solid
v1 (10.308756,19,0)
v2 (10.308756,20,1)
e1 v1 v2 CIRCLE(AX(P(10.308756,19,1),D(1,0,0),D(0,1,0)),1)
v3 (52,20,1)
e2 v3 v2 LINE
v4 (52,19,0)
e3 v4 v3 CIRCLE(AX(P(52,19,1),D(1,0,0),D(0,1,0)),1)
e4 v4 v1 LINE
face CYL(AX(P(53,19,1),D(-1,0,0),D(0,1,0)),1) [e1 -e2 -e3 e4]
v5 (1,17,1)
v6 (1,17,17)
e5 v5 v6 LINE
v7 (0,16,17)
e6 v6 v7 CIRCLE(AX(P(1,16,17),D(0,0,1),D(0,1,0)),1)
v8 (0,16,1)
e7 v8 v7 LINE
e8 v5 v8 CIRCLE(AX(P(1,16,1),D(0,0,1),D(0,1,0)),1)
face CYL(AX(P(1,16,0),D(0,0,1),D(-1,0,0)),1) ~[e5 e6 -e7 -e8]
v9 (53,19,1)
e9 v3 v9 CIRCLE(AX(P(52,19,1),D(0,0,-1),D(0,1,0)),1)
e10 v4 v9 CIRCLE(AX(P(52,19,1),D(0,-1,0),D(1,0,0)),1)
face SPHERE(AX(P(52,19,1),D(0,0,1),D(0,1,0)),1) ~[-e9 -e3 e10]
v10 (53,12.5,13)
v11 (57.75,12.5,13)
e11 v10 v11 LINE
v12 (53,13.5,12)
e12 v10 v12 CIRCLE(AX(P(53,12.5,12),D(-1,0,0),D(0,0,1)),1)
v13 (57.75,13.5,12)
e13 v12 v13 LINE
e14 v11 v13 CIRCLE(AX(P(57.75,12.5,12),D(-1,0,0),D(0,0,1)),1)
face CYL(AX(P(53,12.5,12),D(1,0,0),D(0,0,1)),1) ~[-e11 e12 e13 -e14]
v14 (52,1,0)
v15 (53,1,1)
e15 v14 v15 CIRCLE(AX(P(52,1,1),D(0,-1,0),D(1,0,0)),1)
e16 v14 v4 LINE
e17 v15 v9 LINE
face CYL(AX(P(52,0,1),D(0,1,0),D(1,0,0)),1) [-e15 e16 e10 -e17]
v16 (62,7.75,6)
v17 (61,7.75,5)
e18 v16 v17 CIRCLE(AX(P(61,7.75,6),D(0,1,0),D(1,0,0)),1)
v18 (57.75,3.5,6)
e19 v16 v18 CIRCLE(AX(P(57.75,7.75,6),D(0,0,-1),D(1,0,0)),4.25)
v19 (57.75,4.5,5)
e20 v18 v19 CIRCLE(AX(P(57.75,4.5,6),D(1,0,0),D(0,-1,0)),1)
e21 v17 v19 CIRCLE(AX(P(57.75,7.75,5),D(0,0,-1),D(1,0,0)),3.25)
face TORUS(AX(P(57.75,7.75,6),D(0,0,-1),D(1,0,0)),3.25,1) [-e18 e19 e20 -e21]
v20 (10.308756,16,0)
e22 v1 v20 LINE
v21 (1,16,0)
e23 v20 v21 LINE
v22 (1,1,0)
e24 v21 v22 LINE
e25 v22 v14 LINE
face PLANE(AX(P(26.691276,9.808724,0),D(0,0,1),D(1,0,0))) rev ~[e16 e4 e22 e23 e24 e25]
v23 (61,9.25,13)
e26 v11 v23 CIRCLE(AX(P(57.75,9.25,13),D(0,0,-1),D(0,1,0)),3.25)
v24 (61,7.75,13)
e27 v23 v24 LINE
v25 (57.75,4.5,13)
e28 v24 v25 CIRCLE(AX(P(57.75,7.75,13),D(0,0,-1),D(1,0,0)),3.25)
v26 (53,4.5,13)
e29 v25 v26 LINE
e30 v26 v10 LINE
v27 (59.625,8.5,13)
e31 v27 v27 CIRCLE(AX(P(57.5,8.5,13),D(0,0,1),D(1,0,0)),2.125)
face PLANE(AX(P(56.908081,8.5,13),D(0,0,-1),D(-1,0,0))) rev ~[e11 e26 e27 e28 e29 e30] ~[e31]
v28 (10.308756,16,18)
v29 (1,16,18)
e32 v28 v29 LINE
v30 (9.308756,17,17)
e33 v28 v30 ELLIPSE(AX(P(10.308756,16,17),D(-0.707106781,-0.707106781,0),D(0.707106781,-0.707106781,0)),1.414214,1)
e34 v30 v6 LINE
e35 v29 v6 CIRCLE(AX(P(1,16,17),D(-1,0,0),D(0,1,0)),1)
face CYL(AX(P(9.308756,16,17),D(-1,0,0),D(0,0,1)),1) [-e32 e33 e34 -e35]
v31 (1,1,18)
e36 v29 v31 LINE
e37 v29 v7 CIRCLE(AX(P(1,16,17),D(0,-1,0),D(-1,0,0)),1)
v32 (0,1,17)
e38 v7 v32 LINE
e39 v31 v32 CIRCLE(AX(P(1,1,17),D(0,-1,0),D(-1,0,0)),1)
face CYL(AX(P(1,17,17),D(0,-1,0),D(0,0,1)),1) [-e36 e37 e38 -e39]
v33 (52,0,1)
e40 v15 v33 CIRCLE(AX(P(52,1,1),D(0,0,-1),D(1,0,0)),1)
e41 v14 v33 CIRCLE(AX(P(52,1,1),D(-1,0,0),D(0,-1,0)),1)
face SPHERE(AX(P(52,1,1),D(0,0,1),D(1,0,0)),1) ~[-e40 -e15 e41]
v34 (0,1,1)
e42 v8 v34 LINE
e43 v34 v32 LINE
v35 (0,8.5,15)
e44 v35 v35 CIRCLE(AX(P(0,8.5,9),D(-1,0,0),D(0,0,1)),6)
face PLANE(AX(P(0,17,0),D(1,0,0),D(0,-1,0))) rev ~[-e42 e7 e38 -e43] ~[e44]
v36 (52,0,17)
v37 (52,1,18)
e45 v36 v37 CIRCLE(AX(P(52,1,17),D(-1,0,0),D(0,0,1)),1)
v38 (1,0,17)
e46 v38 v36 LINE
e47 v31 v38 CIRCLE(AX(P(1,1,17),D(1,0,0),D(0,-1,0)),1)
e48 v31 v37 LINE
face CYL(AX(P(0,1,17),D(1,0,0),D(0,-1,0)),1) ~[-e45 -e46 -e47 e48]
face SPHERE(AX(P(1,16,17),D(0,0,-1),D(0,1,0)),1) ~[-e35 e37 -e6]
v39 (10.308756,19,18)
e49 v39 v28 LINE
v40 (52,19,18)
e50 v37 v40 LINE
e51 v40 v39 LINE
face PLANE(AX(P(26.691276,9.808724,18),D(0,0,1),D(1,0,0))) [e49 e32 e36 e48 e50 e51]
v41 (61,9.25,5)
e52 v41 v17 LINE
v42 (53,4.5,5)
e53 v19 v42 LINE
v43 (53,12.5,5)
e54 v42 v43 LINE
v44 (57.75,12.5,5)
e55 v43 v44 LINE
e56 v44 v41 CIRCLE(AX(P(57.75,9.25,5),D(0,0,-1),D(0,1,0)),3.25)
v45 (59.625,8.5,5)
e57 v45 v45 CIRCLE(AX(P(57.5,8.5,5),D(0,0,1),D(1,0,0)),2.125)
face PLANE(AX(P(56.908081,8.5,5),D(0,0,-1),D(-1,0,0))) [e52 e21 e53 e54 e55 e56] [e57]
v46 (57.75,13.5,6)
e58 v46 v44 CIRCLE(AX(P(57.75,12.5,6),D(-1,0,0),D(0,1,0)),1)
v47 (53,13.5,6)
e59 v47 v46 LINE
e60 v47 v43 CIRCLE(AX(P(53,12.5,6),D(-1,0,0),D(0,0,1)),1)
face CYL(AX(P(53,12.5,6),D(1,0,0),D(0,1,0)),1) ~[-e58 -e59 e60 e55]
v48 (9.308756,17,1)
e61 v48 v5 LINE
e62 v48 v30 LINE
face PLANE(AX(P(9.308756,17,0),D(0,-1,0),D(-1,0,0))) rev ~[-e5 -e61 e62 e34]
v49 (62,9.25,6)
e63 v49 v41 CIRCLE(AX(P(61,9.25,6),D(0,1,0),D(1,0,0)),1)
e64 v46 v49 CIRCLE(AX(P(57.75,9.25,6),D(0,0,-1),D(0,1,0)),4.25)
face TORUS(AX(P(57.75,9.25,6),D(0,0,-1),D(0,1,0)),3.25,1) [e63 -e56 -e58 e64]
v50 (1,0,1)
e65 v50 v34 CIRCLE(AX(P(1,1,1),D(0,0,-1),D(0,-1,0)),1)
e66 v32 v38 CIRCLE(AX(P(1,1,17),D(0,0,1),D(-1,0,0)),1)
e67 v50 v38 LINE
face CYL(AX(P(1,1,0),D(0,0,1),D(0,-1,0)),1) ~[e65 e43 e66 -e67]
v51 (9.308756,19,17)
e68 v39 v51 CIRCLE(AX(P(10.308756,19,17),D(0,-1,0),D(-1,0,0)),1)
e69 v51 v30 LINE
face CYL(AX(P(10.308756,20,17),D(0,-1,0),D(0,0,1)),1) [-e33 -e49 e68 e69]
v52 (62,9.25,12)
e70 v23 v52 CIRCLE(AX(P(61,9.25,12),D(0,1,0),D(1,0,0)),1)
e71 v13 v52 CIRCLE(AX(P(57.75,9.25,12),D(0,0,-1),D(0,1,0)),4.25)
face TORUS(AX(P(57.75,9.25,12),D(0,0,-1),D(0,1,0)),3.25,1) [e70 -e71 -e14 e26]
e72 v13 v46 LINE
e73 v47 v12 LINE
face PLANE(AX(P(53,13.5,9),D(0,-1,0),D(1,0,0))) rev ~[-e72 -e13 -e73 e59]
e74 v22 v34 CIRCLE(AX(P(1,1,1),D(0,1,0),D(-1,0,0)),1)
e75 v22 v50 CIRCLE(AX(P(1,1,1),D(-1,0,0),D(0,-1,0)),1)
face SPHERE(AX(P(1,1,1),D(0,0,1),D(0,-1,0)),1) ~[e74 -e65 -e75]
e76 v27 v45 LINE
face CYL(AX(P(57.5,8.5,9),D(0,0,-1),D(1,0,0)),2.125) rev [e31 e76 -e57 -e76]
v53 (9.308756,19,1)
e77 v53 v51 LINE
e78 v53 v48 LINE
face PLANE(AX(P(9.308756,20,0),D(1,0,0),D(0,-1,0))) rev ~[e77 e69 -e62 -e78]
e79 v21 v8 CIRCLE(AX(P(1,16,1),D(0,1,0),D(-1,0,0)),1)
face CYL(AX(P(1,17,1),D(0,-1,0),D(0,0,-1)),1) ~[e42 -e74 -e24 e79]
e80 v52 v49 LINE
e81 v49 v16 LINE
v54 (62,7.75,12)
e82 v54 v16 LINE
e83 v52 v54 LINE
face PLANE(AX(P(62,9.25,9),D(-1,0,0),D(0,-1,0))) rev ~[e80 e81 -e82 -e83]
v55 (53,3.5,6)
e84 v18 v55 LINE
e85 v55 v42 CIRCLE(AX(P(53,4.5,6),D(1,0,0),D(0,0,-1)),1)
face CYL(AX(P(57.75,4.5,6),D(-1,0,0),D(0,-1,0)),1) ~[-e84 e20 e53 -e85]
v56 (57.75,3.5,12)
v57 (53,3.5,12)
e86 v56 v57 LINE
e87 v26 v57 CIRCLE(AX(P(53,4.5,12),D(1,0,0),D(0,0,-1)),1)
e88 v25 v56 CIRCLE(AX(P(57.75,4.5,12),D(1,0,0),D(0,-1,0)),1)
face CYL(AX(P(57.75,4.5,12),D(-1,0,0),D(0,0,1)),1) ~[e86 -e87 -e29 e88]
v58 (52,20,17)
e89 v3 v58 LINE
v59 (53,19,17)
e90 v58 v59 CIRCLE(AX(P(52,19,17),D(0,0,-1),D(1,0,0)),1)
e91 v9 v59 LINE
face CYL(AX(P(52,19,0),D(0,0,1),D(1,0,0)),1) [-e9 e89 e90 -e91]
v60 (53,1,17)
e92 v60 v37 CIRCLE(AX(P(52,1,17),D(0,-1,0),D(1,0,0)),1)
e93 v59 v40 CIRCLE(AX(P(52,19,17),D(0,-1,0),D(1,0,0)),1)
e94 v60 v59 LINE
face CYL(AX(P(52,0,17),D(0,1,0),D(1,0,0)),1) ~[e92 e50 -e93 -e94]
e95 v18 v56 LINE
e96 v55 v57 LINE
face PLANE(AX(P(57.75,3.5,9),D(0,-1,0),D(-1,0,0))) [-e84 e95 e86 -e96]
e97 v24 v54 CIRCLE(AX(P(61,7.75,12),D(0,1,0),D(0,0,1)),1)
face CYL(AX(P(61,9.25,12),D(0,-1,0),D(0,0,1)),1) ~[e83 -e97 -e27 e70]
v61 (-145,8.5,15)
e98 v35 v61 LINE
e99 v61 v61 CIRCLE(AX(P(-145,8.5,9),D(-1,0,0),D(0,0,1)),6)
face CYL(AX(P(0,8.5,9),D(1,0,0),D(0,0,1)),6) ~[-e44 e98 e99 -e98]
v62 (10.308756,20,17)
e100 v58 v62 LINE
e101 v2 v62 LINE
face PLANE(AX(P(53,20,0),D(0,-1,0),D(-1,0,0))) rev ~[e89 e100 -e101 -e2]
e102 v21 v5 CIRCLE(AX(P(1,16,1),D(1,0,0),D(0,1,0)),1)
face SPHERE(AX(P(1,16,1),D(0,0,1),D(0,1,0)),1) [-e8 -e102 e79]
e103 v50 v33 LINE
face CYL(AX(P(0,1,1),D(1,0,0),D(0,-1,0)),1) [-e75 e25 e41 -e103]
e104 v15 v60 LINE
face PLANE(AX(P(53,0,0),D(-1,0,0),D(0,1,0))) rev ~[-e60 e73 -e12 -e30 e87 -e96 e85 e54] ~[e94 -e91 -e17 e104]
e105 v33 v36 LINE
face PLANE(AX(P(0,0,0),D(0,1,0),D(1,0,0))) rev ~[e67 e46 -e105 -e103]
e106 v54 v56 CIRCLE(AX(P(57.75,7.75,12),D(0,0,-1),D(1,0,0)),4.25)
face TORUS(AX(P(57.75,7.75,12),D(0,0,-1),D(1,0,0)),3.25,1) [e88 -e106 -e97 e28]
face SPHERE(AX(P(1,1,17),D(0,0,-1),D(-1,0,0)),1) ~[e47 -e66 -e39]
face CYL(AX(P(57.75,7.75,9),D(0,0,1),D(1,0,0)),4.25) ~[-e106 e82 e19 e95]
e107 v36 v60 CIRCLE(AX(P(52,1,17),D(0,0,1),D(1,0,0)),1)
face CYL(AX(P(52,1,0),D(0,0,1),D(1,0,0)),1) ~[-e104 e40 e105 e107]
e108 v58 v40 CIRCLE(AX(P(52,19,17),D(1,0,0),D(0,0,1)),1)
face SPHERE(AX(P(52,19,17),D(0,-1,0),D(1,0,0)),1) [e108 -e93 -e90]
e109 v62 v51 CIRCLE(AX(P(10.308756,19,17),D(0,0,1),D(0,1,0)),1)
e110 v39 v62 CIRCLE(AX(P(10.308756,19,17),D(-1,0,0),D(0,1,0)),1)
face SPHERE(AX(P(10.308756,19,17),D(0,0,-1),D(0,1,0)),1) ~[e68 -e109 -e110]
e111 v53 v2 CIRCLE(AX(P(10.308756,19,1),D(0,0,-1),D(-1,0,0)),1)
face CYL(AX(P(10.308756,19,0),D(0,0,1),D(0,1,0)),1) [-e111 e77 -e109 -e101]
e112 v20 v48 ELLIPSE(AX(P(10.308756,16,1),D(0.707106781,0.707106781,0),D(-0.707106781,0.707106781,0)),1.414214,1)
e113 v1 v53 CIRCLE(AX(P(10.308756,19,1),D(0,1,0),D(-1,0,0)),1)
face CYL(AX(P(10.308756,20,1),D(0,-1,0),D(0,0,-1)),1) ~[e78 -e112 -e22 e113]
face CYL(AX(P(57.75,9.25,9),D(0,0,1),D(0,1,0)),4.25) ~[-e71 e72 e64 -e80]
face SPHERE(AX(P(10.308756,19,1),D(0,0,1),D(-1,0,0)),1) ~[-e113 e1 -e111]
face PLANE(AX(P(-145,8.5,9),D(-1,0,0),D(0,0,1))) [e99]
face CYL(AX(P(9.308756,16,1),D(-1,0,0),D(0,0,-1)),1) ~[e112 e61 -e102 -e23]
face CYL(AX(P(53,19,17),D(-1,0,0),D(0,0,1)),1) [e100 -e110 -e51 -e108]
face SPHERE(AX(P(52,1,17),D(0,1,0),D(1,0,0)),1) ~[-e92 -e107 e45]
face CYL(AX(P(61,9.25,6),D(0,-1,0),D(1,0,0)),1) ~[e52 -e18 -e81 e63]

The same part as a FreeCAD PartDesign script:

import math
import FreeCAD as App
import Part
import Sketcher
Q = App.Units.Quantity


def edges_at(feature, points):
    """Names of the edges that pass closest to the given points."""
    edges = feature.Shape.Edges
    near = lambda p: min(range(len(edges)), key=lambda i: edges[i].distToShape(Part.Vertex(*p))[0])
    return sorted({f"Edge{near(p) + 1}" for p in points})

doc = App.newDocument("Part")
body = doc.addObject("PartDesign::Body", "Body")

sketch1 = body.newObject("Sketcher::SketchObject", "Sketch")
sketch1.AttachmentSupport = (doc.getObject("XY_Plane"), [""])
sketch1.MapMode = "FlatFace"
sketch1.addGeometry([
    Part.LineSegment(App.Vector(0, 0, 0), App.Vector(53, 0, 0)),
    Part.LineSegment(App.Vector(53, 0, 0), App.Vector(53, 20, 0)),
    Part.LineSegment(App.Vector(53, 20, 0), App.Vector(9.3, 20, 0)),
    Part.LineSegment(App.Vector(9.3, 20, 0), App.Vector(9.3, 17, 0)),
    Part.LineSegment(App.Vector(9.3, 17, 0), App.Vector(0, 17, 0)),
    Part.LineSegment(App.Vector(0, 17, 0), App.Vector(0, 0, 0)),
], False)
sketch1.addConstraint([
    Sketcher.Constraint("Coincident", 0, 2, 1, 1),
    Sketcher.Constraint("Coincident", 1, 2, 2, 1),
    Sketcher.Constraint("Coincident", 2, 2, 3, 1),
    Sketcher.Constraint("Coincident", 3, 2, 4, 1),
    Sketcher.Constraint("Coincident", 4, 2, 5, 1),
    Sketcher.Constraint("Coincident", 5, 2, 0, 1),
    Sketcher.Constraint("Horizontal", 0),
    Sketcher.Constraint("Vertical", 1),
    Sketcher.Constraint("Horizontal", 2),
    Sketcher.Constraint("Vertical", 3),
    Sketcher.Constraint("Horizontal", 4),
    Sketcher.Constraint("Vertical", 5),
    Sketcher.Constraint("Coincident", 5, 2, -1, 1),
    Sketcher.Constraint("DistanceX", 0, 1, 0, 2, Q("53 mm")),
    Sketcher.Constraint("DistanceY", 1, 1, 1, 2, Q("20 mm")),
    Sketcher.Constraint("DistanceY", 3, 2, 3, 1, Q("3 mm")),
    Sketcher.Constraint("DistanceX", 2, 2, 2, 1, Q("43.691244 mm")),
])
pad1 = body.newObject("PartDesign::Pad", "Pad")
pad1.Profile = sketch1
pad1.Length = 18

sketch2 = body.newObject("Sketcher::SketchObject", "Sketch001")
sketch2.AttachmentSupport = (doc.getObject("XY_Plane"), [""])
sketch2.MapMode = "FlatFace"
sketch2.AttachmentOffset = App.Placement(App.Vector(0, 0, 9), App.Rotation())
sketch2.addGeometry([
    Part.LineSegment(App.Vector(57.8, 13.5, 0), App.Vector(53, 13.5, 0)),
    Part.LineSegment(App.Vector(53, 13.5, 0), App.Vector(53, 3.5, 0)),
    Part.LineSegment(App.Vector(53, 3.5, 0), App.Vector(57.8, 3.5, 0)),
    Part.ArcOfCircle(Part.Circle(App.Vector(57.8, 7.8, 0), App.Vector(0, 0, 1), 4.2), math.radians(-90), math.radians(0)),
    Part.LineSegment(App.Vector(62, 7.8, 0), App.Vector(62, 9.2, 0)),
    Part.ArcOfCircle(Part.Circle(App.Vector(57.8, 9.2, 0), App.Vector(0, 0, 1), 4.2), math.radians(0), math.radians(90)),
    Part.Circle(App.Vector(57.5, 8.5, 0), App.Vector(0, 0, 1), 2.1),
], False)
sketch2.addConstraint([
    Sketcher.Constraint("Coincident", 0, 2, 1, 1),
    Sketcher.Constraint("Coincident", 1, 2, 2, 1),
    Sketcher.Constraint("Tangent", 2, 2, 3, 1),
    Sketcher.Constraint("Tangent", 3, 2, 4, 1),
    Sketcher.Constraint("Tangent", 4, 2, 5, 1),
    Sketcher.Constraint("Tangent", 5, 2, 0, 1),
    Sketcher.Constraint("Horizontal", 0),
    Sketcher.Constraint("Vertical", 1),
    Sketcher.Constraint("Horizontal", 2),
    Sketcher.Constraint("Vertical", 4),
    Sketcher.Constraint("Equal", 3, 5),
    Sketcher.Constraint("Diameter", 6, Q("4.25 mm")),
    Sketcher.Constraint("DistanceY", 1, 2, 1, 1, Q("10 mm")),
    Sketcher.Constraint("Radius", 3, Q("4.25 mm")),
    Sketcher.Constraint("DistanceX", -1, 1, 0, 2, Q("53 mm")),
    Sketcher.Constraint("DistanceX", -1, 1, 3, 2, Q("62 mm")),
    Sketcher.Constraint("DistanceY", 6, 3, 0, 2, Q("5 mm")),
    Sketcher.Constraint("DistanceX", -1, 1, 6, 3, Q("57.5 mm")),
    Sketcher.Constraint("DistanceY", -1, 1, 6, 3, Q("8.5 mm")),
])
pad2 = body.newObject("PartDesign::Pad", "Pad001")
pad2.Profile = sketch2
pad2.Type = "TwoLengths"
pad2.Length = 4
pad2.Length2 = 4

sketch3 = body.newObject("Sketcher::SketchObject", "Sketch002")
sketch3.AttachmentSupport = (doc.getObject("YZ_Plane"), [""])
sketch3.MapMode = "FlatFace"
sketch3.addGeometry(Part.Circle(App.Vector(8, 9, 0), App.Vector(0, 0, 1), 6), False)
sketch3.addConstraint([
    Sketcher.Constraint("Diameter", 0, Q("12 mm")),
    Sketcher.Constraint("DistanceY", -1, 1, 0, 3, Q("9 mm")),
    Sketcher.Constraint("DistanceX", -1, 1, 0, 3, Q("8.5 mm")),
])
pad3 = body.newObject("PartDesign::Pad", "Pad002")
pad3.Profile = sketch3
pad3.Length = 145
pad3.Reversed = True
doc.recompute()

fillet = body.newObject("PartDesign::Fillet", "Fillet")
fillet.Base = (pad3, edges_at(pad3, [
    (53, 10, 18),
    (0, 17, 9),
    (9.309, 20, 9),
    (53, 20, 9),
    (53, 0, 9),
    (0, 0, 9),
    (31.154, 20, 18),
    (9.309, 18.5, 18),
    (4.654, 17, 18),
    (55.375, 13.5, 5),
    (60.755, 12.255, 5),
    (62, 8.5, 5),
    (60.755, 4.745, 5),
    (55.375, 3.5, 5),
    (55.375, 3.5, 13),
    (60.755, 4.745, 13),
    (62, 8.5, 13),
    (60.755, 12.255, 13),
    (55.375, 13.5, 13),
    (0, 8.5, 18),
    (4.654, 17, 0),
    (9.309, 18.5, 0),
    (31.154, 20, 0),
    (26.5, 0, 18),
    (53, 10, 0),
    (26.5, 0, 0),
    (0, 8.5, 0),
]))
fillet.Radius = 1

doc.recompute()
